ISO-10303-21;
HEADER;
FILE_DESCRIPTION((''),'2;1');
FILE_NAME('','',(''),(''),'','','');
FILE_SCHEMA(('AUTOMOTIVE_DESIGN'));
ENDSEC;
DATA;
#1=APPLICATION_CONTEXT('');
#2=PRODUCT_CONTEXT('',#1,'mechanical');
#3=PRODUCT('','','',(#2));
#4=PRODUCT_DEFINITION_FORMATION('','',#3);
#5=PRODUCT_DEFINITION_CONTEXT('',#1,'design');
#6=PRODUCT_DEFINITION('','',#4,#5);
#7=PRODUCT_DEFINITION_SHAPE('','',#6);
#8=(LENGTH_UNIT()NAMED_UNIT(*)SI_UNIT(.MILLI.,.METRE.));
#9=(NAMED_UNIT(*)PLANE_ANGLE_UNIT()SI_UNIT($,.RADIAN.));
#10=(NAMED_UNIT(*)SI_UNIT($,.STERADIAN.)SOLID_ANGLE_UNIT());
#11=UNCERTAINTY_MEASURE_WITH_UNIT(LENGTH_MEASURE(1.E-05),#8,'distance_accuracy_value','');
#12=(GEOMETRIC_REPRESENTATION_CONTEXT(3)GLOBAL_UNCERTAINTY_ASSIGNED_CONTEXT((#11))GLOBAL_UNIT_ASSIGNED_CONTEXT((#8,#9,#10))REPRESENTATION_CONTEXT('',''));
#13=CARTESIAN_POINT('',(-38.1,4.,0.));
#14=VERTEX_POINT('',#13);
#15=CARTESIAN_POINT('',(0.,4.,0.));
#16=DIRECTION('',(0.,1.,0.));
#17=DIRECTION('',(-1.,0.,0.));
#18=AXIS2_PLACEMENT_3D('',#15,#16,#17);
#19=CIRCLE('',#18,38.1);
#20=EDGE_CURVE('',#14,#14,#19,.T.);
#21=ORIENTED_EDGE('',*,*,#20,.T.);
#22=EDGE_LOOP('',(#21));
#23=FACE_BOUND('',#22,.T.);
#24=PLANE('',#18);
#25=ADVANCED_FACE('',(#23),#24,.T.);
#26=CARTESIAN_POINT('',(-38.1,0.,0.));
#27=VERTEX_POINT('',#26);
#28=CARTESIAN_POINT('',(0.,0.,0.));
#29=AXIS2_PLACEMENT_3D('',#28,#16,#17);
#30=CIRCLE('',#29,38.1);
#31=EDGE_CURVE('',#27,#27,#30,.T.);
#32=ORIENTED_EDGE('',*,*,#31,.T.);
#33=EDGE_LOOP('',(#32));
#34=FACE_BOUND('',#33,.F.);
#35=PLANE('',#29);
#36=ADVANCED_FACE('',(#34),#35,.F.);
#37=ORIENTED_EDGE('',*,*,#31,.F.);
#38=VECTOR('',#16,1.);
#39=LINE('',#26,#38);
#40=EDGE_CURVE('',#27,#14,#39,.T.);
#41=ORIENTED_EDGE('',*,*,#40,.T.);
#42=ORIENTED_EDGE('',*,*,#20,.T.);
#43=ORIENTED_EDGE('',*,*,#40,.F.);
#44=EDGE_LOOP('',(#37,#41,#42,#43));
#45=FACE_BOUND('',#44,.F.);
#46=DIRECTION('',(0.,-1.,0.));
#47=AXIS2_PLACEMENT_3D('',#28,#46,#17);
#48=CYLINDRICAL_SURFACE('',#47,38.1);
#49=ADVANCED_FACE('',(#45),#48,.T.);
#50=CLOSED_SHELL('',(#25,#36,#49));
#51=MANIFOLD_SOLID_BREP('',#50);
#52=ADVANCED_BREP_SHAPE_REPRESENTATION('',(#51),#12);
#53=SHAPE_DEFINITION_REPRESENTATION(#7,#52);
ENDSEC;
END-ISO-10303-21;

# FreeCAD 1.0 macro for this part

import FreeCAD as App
import Part
import Sketcher
Q = App.Units.Quantity

doc = App.newDocument("Part")
params = doc.addObject("Spreadsheet::Sheet", "Params")
for row, (alias, value) in enumerate([
    ("sketch1_diameter", "76.2 mm"),
    ("pad1_length", "4 mm"),
], start=1):
    params.set(f"A{row}", alias)
    params.set(f"B{row}", "=" + value)
    params.setAlias(f"B{row}", alias)

body = doc.addObject("PartDesign::Body", "Body")

sketch1 = doc.addObject("Sketcher::SketchObject", "Sketch")
body.addObject(sketch1)
sketch1.AttachmentSupport = (doc.XZ_Plane, [""])
sketch1.MapMode = "FlatFace"
sketch1.addGeometry(Part.Circle(App.Vector(0, 0, 0), App.Vector(0, 0, 1), 38), False)
sketch1.addConstraint([
    Sketcher.Constraint("Coincident", 0, 3, -1, 1),
    Sketcher.Constraint("Diameter", 0, Q("76.2 mm")),
])
sketch1.setExpression("Constraints[1]", "Params.sketch1_diameter")
pad1 = doc.addObject("PartDesign::Pad", "Pad")
body.addObject(pad1)
pad1.Profile = sketch1
pad1.setExpression("Length", "Params.pad1_length")
pad1.Reversed = True

doc.recompute()
